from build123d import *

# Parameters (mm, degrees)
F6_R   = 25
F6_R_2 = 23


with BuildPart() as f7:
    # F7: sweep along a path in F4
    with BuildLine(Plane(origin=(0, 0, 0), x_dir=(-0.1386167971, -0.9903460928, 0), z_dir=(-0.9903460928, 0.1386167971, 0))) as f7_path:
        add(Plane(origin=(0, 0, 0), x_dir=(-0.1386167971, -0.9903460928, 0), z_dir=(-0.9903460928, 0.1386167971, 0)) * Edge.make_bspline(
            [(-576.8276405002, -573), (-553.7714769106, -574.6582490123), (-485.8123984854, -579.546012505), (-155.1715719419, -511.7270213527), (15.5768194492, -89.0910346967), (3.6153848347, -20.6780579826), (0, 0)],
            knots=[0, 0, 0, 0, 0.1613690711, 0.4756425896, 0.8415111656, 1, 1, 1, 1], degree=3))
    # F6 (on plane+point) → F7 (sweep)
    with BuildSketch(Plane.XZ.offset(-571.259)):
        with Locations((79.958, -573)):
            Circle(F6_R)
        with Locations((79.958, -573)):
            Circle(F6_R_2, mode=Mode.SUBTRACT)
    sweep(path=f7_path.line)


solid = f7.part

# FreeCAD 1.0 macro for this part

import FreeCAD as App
import Part
import Sketcher
from FreeCAD import Vector

doc = App.newDocument("Part")
body = doc.addObject("PartDesign::Body", "Body")

sketch1 = body.newObject("Sketcher::SketchObject", "Sketch")
sketch1.AttachmentSupport = (doc.getObject("XZ_Plane"), [""])
sketch1.MapMode = "FlatFace"
sketch1.AttachmentOffset = App.Placement(Vector(0, 0, -571.259), App.Rotation())
sketch1.addGeometry([
    Part.Circle(Vector(80, -573, 0), Vector(0, 0, 1), 25),
    Part.Circle(Vector(80, -573, 0), Vector(0, 0, 1), 23),
], False)
sketch1.addConstraint([
    Sketcher.Constraint("Coincident", 1, 3, 0, 3),
    Sketcher.Constraint("Diameter", 0, 50.0),
    Sketcher.Constraint("Diameter", 1, 46.0),
    Sketcher.Constraint("DistanceY", 0, 3, -1, 1, 573.0),
    Sketcher.Constraint("DistanceX", -1, 1, 0, 3, 79.958),
])

sketch2 = body.newObject("Sketcher::SketchObject", "Sketch001")
sketch2.Placement = App.Placement(Vector(0, 0, 0), App.Rotation(Vector(0.138616797, 0.990346093, 0), Vector(0, 0, 1), Vector(0.990346093, -0.138616797, 0), "ZXY"))
sketch2.addGeometry(Part.BSplineCurve([Vector(576.827641, -573, 0), Vector(553.771477, -574.658249, 0), Vector(485.812399, -579.546013, 0), Vector(155.171572, -511.727022, 0), Vector(-15.576819, -89.091035, 0), Vector(-3.615385, -20.678058, 0), Vector(0, 0, 0)], [4, 1, 1, 1, 4], [0, 0.161369071, 0.47564259, 0.841511166, 1], False, 3, [1, 1, 1, 1, 1, 1, 1], False), False)
sketch2.addConstraint(Sketcher.Constraint("Block", 0))
doc.recompute()

additivepipe = body.newObject("PartDesign::AdditivePipe", "AdditivePipe")
additivepipe.Profile = sketch1
additivepipe.Spine = (sketch2, ["Edge1"])

doc.recompute()
